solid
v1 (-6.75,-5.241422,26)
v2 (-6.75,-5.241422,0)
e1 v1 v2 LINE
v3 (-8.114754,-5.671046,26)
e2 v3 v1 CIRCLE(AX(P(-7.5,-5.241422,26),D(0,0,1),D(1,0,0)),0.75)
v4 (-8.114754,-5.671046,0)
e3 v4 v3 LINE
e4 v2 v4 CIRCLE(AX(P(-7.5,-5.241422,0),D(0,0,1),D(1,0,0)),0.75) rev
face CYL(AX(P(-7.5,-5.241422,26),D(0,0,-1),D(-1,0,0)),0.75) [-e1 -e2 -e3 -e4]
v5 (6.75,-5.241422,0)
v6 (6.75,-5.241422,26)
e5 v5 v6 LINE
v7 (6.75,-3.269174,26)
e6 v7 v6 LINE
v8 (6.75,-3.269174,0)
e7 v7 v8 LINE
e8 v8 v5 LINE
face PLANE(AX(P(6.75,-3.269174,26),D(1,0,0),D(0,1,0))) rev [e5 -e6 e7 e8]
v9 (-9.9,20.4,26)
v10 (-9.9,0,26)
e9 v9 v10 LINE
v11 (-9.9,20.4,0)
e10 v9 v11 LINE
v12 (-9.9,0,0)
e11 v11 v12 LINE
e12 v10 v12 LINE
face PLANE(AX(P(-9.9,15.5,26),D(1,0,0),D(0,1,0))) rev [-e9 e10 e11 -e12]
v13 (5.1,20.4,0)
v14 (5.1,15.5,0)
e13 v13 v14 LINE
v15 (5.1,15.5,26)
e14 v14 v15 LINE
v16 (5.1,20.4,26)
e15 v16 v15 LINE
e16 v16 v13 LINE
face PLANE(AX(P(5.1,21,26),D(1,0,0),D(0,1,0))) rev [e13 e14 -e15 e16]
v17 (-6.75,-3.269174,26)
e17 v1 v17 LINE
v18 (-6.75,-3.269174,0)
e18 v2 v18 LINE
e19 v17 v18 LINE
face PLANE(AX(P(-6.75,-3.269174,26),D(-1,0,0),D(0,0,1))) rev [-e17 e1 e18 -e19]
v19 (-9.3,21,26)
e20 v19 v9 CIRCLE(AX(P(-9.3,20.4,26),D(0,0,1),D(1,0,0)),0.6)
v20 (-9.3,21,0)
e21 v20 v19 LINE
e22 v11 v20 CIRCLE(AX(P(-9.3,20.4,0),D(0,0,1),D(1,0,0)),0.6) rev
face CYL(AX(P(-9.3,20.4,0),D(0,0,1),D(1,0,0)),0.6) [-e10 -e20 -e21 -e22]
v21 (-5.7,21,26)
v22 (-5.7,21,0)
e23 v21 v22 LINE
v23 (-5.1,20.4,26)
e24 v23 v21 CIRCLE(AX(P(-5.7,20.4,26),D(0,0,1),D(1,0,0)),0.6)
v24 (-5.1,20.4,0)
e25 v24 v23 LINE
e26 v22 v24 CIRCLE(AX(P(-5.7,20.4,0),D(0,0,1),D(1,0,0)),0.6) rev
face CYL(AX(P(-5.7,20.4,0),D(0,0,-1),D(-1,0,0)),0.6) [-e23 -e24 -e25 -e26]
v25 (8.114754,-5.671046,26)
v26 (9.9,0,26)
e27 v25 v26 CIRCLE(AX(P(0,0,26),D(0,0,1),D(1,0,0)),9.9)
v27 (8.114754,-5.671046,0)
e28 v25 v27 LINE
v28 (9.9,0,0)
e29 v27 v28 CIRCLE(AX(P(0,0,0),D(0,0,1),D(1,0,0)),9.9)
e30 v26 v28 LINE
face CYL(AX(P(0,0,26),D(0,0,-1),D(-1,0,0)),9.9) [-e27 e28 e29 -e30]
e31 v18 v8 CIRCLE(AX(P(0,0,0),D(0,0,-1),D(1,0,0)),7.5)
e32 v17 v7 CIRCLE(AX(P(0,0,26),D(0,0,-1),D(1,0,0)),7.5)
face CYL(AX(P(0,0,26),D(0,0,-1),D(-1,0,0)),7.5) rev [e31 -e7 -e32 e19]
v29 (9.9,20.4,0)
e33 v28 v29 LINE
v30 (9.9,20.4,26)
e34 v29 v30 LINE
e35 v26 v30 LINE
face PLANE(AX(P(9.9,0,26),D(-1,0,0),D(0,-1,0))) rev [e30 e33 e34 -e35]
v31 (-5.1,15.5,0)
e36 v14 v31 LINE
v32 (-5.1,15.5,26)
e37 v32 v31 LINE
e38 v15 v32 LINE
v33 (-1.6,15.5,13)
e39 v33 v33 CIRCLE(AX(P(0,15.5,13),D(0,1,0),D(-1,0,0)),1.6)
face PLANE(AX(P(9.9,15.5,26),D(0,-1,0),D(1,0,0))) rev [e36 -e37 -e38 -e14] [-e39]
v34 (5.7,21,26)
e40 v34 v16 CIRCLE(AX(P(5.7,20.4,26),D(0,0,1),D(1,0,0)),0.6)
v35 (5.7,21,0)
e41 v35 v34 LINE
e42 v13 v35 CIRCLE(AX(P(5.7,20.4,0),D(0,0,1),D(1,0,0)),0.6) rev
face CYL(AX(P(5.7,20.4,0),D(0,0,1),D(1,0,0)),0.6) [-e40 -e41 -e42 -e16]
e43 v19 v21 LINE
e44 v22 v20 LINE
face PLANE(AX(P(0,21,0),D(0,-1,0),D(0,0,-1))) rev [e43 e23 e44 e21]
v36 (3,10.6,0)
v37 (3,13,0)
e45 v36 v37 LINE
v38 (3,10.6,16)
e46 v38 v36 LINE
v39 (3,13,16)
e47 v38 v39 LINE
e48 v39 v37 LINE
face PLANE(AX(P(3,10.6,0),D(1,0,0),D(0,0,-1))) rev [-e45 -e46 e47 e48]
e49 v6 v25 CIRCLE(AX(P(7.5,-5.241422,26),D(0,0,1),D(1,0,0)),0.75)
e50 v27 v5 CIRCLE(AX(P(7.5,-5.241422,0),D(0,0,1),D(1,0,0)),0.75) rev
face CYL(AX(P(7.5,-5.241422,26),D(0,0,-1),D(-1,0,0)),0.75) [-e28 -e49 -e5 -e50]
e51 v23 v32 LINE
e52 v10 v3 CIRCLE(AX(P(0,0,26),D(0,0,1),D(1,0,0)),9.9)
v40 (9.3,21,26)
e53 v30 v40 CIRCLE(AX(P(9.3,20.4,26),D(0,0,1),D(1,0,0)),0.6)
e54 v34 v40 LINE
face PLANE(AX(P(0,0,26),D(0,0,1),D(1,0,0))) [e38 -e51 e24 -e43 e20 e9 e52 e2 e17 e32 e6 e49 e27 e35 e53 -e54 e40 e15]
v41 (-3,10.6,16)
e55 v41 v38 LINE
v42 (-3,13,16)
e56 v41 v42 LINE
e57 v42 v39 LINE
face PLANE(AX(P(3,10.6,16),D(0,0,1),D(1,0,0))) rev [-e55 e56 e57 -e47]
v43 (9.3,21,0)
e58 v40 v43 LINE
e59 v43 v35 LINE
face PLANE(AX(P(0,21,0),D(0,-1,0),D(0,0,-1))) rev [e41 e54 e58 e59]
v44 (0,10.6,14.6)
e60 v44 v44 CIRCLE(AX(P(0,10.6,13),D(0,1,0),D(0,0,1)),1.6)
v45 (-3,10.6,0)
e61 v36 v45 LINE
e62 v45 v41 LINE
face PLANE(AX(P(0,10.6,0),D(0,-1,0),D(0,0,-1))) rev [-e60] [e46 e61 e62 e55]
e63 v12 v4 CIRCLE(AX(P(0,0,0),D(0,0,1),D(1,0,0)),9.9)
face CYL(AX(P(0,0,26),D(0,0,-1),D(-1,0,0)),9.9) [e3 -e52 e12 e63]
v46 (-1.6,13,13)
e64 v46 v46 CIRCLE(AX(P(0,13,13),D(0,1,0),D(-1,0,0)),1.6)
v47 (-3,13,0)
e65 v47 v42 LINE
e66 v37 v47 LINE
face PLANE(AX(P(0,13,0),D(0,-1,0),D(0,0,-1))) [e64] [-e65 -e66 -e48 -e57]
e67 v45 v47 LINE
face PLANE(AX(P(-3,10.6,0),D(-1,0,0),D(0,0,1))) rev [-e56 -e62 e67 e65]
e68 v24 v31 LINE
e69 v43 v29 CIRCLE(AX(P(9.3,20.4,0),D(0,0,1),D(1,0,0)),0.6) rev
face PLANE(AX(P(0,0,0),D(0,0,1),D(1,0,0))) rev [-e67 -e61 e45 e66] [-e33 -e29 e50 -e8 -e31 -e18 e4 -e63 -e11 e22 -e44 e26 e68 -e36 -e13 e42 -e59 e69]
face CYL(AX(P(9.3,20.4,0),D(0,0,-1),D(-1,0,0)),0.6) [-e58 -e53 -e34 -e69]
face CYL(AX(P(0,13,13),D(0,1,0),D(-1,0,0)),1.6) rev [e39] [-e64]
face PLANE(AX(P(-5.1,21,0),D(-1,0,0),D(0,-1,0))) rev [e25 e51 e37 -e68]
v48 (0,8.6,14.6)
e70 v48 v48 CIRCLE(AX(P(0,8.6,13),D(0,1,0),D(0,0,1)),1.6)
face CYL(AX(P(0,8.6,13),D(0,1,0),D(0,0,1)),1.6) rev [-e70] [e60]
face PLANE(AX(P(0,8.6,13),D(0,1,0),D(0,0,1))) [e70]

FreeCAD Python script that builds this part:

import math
import FreeCAD as App
import Part
import Sketcher

V = App.Vector


def edges_at(feature, points):
    """Names of the edges that pass closest to the given points."""
    edges = feature.Shape.Edges
    near = lambda p: min(range(len(edges)), key=lambda i: edges[i].distToShape(Part.Vertex(*p))[0])
    return sorted({f"Edge{near(p) + 1}" for p in points})

doc = App.newDocument("Part")
body = doc.addObject("PartDesign::Body", "Body")

# Sketch on XY plane
sketch1 = body.newObject("Sketcher::SketchObject", "Sketch")
sketch1.AttachmentSupport = (doc.getObject("XY_Plane"), [""])
sketch1.MapMode = "FlatFace"
sketch1.addGeometry([
    Part.LineSegment(V(-6.8, -7.2, 0), V(-6.8, -3.3, 0)),  # 0
    Part.ArcOfCircle(Part.Circle(V(0, 0, 0), V(0, 0, 1), 7.5), math.radians(-26), math.radians(206)),  # 1
    Part.LineSegment(V(6.8, -3.3, 0), V(6.8, -7.2, 0)),  # 2
    Part.ArcOfCircle(Part.Circle(V(0, 0, 0), V(0, 0, 1), 9.9), math.radians(-47), math.radians(0)),  # 3
    Part.LineSegment(V(9.9, 0, 0), V(9.9, 15.5, 0)),  # 4
    Part.LineSegment(V(9.9, 15.5, 0), V(-9.9, 15.5, 0)),  # 5
    Part.LineSegment(V(-9.9, 15.5, 0), V(-9.9, 0, 0)),  # 6
    Part.ArcOfCircle(Part.Circle(V(0, 0, 0), V(0, 0, 1), 9.9), math.radians(180), math.radians(227)),  # 7
], False)
sketch1.addConstraint([
    Sketcher.Constraint("Coincident", 0, 2, 1, 2),
    Sketcher.Constraint("Coincident", 1, 1, 2, 1),
    Sketcher.Constraint("Coincident", 2, 2, 3, 1),
    Sketcher.Constraint("Tangent", 3, 2, 4, 1),
    Sketcher.Constraint("Coincident", 4, 2, 5, 1),
    Sketcher.Constraint("Coincident", 5, 2, 6, 1),
    Sketcher.Constraint("Tangent", 6, 2, 7, 1),
    Sketcher.Constraint("Coincident", 7, 2, 0, 1),
    Sketcher.Constraint("Vertical", 0),
    Sketcher.Constraint("Vertical", 2),
    Sketcher.Constraint("Vertical", 4),
    Sketcher.Constraint("Horizontal", 5),
    Sketcher.Constraint("Vertical", 6),
    Sketcher.Constraint("Coincident", 1, 3, -1, 1),
    Sketcher.Constraint("Coincident", 3, 3, -1, 1),
    Sketcher.Constraint("Coincident", 7, 3, -1, 1),
    Sketcher.Constraint("Equal", 3, 7),
    Sketcher.Constraint("Horizontal", 0, 2, 1, 1),
    Sketcher.Constraint("Radius", 1, 7.5),
    Sketcher.Constraint("Radius", 3, 9.9),
    Sketcher.Constraint("DistanceY", 4, 1, 4, 2, 15.5),
    Sketcher.Constraint("DistanceX", 0, 2, 1, 1, 13.5),
])
pad1 = body.newObject("PartDesign::Pad", "Pad")
pad1.Profile = sketch1
pad1.Length = 26

# Sketch on XZ plane
sketch2 = body.newObject("Sketcher::SketchObject", "Sketch001")
sketch2.AttachmentSupport = (doc.getObject("XZ_Plane"), [""])
sketch2.MapMode = "FlatFace"
sketch2.AttachmentOffset = App.Placement(V(0, 0, -15.5), App.Rotation())
sketch2.addGeometry([
    Part.LineSegment(V(-9.9, 0, 0), V(-9.9, 26, 0)),  # 0
    Part.LineSegment(V(-9.9, 26, 0), V(-5.1, 26, 0)),  # 1
    Part.LineSegment(V(-5.1, 26, 0), V(-5.1, 0, 0)),  # 2
    Part.LineSegment(V(-5.1, 0, 0), V(-9.9, 0, 0)),  # 3
    Part.LineSegment(V(5.1, 0, 0), V(5.1, 26, 0)),  # 4
    Part.LineSegment(V(5.1, 26, 0), V(9.9, 26, 0)),  # 5
    Part.LineSegment(V(9.9, 26, 0), V(9.9, 0, 0)),  # 6
    Part.LineSegment(V(9.9, 0, 0), V(5.1, 0, 0)),  # 7
], False)
sketch2.addConstraint([
    Sketcher.Constraint("Coincident", 0, 2, 1, 1),
    Sketcher.Constraint("Coincident", 1, 2, 2, 1),
    Sketcher.Constraint("Coincident", 2, 2, 3, 1),
    Sketcher.Constraint("Coincident", 3, 2, 0, 1),
    Sketcher.Constraint("Coincident", 4, 2, 5, 1),
    Sketcher.Constraint("Coincident", 5, 2, 6, 1),
    Sketcher.Constraint("Coincident", 6, 2, 7, 1),
    Sketcher.Constraint("Coincident", 7, 2, 4, 1),
    Sketcher.Constraint("Vertical", 0),
    Sketcher.Constraint("Horizontal", 1),
    Sketcher.Constraint("Vertical", 2),
    Sketcher.Constraint("Horizontal", 3),
    Sketcher.Constraint("Vertical", 4),
    Sketcher.Constraint("Horizontal", 5),
    Sketcher.Constraint("Vertical", 6),
    Sketcher.Constraint("Horizontal", 7),
    Sketcher.Constraint("Symmetric", 3, 2, 6, 2, -1, 1),
    Sketcher.Constraint("Symmetric", 1, 2, 4, 2, -2),
    Sketcher.Constraint("PointOnObject", 2, 2, -1),
    Sketcher.Constraint("DistanceY", 0, 1, 0, 2, 26.0),
    Sketcher.Constraint("DistanceX", 1, 1, 1, 2, 4.8),
    Sketcher.Constraint("DistanceX", 0, 2, 4, 2, 15.0),
])
pad2 = body.newObject("PartDesign::Pad", "Pad001")
pad2.Profile = sketch2
pad2.Length = 5.5
pad2.Reversed = True
doc.recompute()

fillet = body.newObject("PartDesign::Fillet", "Fillet")
fillet.Base = (pad2, edges_at(pad2, [(-6.75, -7.242, 13), (6.75, -7.242, 13)]))
fillet.Radius = 0.75

# Sketch on XZ plane
sketch3 = body.newObject("Sketcher::SketchObject", "Sketch002")
sketch3.AttachmentSupport = (doc.getObject("XZ_Plane"), [""])
sketch3.MapMode = "FlatFace"
sketch3.AttachmentOffset = App.Placement(V(0, 0, -15.5), App.Rotation())
sketch3.addGeometry(Part.Circle(V(0, 13, 0), V(0, 0, 1), 1.6), False)
sketch3.addConstraint([
    Sketcher.Constraint("PointOnObject", 0, 3, -2),
    Sketcher.Constraint("Diameter", 0, 3.2),
    Sketcher.Constraint("DistanceY", -1, 1, 0, 3, 13.0),
])
pocket1 = body.newObject("PartDesign::Pocket", "Pocket")
pocket1.Profile = sketch3
pocket1.Length = 2.5
pocket1.Reversed = True

# Sketch on XZ plane
sketch4 = body.newObject("Sketcher::SketchObject", "Sketch003")
sketch4.AttachmentSupport = (doc.getObject("XZ_Plane"), [""])
sketch4.MapMode = "FlatFace"
sketch4.AttachmentOffset = App.Placement(V(0, 0, -13), App.Rotation())
sketch4.addGeometry([
    Part.LineSegment(V(-3, 0, 0), V(-3, 16, 0)),
    Part.LineSegment(V(-3, 16, 0), V(3, 16, 0)),
    Part.LineSegment(V(3, 16, 0), V(3, 0, 0)),
    Part.LineSegment(V(3, 0, 0), V(-3, 0, 0)),
], False)
sketch4.addConstraint([
    Sketcher.Constraint("Coincident", 0, 2, 1, 1),
    Sketcher.Constraint("Coincident", 1, 2, 2, 1),
    Sketcher.Constraint("Coincident", 2, 2, 3, 1),
    Sketcher.Constraint("Coincident", 3, 2, 0, 1),
    Sketcher.Constraint("Vertical", 0),
    Sketcher.Constraint("Horizontal", 1),
    Sketcher.Constraint("Vertical", 2),
    Sketcher.Constraint("Horizontal", 3),
    Sketcher.Constraint("Symmetric", 2, 2, 3, 2, -1, 1),
    Sketcher.Constraint("DistanceX", 1, 1, 1, 2, 6.0),
    Sketcher.Constraint("DistanceY", 0, 1, 0, 2, 16.0),
])
pocket2 = body.newObject("PartDesign::Pocket", "Pocket001")
pocket2.Profile = sketch4
pocket2.Length = 2.4
pocket2.Reversed = True

# Sketch on XZ plane
sketch5 = body.newObject("Sketcher::SketchObject", "Sketch004")
sketch5.AttachmentSupport = (doc.getObject("XZ_Plane"), [""])
sketch5.MapMode = "FlatFace"
sketch5.AttachmentOffset = App.Placement(V(0, 0, -10.6), App.Rotation())
sketch5.addGeometry(Part.Circle(V(0, 13, 0), V(0, 0, 1), 1.6), False)
sketch5.addConstraint([
    Sketcher.Constraint("PointOnObject", 0, 3, -2),
    Sketcher.Constraint("Diameter", 0, 3.2),
    Sketcher.Constraint("DistanceY", -1, 1, 0, 3, 13.0),
])
pocket3 = body.newObject("PartDesign::Pocket", "Pocket002")
pocket3.Profile = sketch5
pocket3.Length = 2
pocket3.Reversed = True
doc.recompute()

fillet2 = body.newObject("PartDesign::Fillet", "Fillet001")
fillet2.Base = (pocket3, edges_at(pocket3, [
    (-5.1, 21, 13),
    (-9.9, 21, 13),
    (5.1, 21, 13),
    (9.9, 21, 13),
]))
fillet2.Radius = 0.6

doc.recompute()
